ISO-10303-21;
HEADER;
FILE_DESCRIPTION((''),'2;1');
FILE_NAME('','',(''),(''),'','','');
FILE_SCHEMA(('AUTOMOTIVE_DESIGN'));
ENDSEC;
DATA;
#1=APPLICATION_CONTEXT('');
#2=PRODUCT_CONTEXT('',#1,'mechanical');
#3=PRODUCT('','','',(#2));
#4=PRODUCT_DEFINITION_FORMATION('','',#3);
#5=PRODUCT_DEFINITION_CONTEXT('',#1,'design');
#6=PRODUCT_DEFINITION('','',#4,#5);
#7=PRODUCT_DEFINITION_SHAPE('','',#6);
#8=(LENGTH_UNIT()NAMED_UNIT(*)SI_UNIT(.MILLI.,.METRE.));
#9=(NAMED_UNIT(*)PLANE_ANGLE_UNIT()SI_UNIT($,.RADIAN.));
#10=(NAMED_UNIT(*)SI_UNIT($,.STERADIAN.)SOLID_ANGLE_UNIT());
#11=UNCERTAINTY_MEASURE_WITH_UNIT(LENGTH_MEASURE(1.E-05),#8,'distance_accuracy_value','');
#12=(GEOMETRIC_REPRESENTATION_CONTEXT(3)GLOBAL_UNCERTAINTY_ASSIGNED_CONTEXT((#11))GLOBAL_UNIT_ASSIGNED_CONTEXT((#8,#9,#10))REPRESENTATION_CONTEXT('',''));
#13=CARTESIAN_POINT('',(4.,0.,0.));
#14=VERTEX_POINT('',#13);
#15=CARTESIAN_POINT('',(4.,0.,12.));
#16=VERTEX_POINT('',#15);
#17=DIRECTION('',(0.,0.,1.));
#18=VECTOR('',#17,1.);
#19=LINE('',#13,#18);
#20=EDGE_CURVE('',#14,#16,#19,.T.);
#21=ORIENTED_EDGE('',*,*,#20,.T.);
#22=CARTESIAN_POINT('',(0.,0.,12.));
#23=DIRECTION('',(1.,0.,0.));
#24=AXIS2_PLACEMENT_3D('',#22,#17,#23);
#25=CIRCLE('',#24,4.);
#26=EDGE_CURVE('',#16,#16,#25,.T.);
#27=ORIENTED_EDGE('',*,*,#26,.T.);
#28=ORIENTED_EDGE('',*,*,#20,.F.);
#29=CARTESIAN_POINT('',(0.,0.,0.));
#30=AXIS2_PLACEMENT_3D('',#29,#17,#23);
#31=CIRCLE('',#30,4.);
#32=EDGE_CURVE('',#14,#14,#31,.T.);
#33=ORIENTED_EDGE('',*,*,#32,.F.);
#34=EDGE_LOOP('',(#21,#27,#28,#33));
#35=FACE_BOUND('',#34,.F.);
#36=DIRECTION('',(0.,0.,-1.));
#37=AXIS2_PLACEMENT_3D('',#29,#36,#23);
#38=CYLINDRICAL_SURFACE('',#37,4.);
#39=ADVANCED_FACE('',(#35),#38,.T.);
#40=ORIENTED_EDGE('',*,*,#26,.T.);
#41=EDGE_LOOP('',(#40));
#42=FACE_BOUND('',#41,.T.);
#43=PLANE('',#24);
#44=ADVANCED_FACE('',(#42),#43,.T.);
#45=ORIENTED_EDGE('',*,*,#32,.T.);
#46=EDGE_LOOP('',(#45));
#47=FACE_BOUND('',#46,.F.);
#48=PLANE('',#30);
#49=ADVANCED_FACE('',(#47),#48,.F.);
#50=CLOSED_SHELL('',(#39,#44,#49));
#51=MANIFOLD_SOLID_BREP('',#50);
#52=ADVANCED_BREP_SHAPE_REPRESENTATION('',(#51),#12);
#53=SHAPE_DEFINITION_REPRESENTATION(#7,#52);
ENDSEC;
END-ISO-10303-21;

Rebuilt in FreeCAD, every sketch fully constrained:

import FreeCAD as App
import Part
import Sketcher

doc = App.newDocument("Part")
body = doc.addObject("PartDesign::Body", "Body")

sketch1 = doc.addObject("Sketcher::SketchObject", "Sketch")
body.addObject(sketch1)
sketch1.AttachmentSupport = (doc.XY_Plane, [""])
sketch1.MapMode = "FlatFace"
sketch1.addGeometry(Part.Circle(App.Vector(0, 0, 0), App.Vector(0, 0, 1), 4), False)
sketch1.addConstraint([
    Sketcher.Constraint("Coincident", 0, 3, -1, 1),
    Sketcher.Constraint("Diameter", 0, 8.0),
])
pad1 = doc.addObject("PartDesign::Pad", "Pad")
body.addObject(pad1)
pad1.Profile = sketch1
pad1.Length = 12

doc.recompute()
